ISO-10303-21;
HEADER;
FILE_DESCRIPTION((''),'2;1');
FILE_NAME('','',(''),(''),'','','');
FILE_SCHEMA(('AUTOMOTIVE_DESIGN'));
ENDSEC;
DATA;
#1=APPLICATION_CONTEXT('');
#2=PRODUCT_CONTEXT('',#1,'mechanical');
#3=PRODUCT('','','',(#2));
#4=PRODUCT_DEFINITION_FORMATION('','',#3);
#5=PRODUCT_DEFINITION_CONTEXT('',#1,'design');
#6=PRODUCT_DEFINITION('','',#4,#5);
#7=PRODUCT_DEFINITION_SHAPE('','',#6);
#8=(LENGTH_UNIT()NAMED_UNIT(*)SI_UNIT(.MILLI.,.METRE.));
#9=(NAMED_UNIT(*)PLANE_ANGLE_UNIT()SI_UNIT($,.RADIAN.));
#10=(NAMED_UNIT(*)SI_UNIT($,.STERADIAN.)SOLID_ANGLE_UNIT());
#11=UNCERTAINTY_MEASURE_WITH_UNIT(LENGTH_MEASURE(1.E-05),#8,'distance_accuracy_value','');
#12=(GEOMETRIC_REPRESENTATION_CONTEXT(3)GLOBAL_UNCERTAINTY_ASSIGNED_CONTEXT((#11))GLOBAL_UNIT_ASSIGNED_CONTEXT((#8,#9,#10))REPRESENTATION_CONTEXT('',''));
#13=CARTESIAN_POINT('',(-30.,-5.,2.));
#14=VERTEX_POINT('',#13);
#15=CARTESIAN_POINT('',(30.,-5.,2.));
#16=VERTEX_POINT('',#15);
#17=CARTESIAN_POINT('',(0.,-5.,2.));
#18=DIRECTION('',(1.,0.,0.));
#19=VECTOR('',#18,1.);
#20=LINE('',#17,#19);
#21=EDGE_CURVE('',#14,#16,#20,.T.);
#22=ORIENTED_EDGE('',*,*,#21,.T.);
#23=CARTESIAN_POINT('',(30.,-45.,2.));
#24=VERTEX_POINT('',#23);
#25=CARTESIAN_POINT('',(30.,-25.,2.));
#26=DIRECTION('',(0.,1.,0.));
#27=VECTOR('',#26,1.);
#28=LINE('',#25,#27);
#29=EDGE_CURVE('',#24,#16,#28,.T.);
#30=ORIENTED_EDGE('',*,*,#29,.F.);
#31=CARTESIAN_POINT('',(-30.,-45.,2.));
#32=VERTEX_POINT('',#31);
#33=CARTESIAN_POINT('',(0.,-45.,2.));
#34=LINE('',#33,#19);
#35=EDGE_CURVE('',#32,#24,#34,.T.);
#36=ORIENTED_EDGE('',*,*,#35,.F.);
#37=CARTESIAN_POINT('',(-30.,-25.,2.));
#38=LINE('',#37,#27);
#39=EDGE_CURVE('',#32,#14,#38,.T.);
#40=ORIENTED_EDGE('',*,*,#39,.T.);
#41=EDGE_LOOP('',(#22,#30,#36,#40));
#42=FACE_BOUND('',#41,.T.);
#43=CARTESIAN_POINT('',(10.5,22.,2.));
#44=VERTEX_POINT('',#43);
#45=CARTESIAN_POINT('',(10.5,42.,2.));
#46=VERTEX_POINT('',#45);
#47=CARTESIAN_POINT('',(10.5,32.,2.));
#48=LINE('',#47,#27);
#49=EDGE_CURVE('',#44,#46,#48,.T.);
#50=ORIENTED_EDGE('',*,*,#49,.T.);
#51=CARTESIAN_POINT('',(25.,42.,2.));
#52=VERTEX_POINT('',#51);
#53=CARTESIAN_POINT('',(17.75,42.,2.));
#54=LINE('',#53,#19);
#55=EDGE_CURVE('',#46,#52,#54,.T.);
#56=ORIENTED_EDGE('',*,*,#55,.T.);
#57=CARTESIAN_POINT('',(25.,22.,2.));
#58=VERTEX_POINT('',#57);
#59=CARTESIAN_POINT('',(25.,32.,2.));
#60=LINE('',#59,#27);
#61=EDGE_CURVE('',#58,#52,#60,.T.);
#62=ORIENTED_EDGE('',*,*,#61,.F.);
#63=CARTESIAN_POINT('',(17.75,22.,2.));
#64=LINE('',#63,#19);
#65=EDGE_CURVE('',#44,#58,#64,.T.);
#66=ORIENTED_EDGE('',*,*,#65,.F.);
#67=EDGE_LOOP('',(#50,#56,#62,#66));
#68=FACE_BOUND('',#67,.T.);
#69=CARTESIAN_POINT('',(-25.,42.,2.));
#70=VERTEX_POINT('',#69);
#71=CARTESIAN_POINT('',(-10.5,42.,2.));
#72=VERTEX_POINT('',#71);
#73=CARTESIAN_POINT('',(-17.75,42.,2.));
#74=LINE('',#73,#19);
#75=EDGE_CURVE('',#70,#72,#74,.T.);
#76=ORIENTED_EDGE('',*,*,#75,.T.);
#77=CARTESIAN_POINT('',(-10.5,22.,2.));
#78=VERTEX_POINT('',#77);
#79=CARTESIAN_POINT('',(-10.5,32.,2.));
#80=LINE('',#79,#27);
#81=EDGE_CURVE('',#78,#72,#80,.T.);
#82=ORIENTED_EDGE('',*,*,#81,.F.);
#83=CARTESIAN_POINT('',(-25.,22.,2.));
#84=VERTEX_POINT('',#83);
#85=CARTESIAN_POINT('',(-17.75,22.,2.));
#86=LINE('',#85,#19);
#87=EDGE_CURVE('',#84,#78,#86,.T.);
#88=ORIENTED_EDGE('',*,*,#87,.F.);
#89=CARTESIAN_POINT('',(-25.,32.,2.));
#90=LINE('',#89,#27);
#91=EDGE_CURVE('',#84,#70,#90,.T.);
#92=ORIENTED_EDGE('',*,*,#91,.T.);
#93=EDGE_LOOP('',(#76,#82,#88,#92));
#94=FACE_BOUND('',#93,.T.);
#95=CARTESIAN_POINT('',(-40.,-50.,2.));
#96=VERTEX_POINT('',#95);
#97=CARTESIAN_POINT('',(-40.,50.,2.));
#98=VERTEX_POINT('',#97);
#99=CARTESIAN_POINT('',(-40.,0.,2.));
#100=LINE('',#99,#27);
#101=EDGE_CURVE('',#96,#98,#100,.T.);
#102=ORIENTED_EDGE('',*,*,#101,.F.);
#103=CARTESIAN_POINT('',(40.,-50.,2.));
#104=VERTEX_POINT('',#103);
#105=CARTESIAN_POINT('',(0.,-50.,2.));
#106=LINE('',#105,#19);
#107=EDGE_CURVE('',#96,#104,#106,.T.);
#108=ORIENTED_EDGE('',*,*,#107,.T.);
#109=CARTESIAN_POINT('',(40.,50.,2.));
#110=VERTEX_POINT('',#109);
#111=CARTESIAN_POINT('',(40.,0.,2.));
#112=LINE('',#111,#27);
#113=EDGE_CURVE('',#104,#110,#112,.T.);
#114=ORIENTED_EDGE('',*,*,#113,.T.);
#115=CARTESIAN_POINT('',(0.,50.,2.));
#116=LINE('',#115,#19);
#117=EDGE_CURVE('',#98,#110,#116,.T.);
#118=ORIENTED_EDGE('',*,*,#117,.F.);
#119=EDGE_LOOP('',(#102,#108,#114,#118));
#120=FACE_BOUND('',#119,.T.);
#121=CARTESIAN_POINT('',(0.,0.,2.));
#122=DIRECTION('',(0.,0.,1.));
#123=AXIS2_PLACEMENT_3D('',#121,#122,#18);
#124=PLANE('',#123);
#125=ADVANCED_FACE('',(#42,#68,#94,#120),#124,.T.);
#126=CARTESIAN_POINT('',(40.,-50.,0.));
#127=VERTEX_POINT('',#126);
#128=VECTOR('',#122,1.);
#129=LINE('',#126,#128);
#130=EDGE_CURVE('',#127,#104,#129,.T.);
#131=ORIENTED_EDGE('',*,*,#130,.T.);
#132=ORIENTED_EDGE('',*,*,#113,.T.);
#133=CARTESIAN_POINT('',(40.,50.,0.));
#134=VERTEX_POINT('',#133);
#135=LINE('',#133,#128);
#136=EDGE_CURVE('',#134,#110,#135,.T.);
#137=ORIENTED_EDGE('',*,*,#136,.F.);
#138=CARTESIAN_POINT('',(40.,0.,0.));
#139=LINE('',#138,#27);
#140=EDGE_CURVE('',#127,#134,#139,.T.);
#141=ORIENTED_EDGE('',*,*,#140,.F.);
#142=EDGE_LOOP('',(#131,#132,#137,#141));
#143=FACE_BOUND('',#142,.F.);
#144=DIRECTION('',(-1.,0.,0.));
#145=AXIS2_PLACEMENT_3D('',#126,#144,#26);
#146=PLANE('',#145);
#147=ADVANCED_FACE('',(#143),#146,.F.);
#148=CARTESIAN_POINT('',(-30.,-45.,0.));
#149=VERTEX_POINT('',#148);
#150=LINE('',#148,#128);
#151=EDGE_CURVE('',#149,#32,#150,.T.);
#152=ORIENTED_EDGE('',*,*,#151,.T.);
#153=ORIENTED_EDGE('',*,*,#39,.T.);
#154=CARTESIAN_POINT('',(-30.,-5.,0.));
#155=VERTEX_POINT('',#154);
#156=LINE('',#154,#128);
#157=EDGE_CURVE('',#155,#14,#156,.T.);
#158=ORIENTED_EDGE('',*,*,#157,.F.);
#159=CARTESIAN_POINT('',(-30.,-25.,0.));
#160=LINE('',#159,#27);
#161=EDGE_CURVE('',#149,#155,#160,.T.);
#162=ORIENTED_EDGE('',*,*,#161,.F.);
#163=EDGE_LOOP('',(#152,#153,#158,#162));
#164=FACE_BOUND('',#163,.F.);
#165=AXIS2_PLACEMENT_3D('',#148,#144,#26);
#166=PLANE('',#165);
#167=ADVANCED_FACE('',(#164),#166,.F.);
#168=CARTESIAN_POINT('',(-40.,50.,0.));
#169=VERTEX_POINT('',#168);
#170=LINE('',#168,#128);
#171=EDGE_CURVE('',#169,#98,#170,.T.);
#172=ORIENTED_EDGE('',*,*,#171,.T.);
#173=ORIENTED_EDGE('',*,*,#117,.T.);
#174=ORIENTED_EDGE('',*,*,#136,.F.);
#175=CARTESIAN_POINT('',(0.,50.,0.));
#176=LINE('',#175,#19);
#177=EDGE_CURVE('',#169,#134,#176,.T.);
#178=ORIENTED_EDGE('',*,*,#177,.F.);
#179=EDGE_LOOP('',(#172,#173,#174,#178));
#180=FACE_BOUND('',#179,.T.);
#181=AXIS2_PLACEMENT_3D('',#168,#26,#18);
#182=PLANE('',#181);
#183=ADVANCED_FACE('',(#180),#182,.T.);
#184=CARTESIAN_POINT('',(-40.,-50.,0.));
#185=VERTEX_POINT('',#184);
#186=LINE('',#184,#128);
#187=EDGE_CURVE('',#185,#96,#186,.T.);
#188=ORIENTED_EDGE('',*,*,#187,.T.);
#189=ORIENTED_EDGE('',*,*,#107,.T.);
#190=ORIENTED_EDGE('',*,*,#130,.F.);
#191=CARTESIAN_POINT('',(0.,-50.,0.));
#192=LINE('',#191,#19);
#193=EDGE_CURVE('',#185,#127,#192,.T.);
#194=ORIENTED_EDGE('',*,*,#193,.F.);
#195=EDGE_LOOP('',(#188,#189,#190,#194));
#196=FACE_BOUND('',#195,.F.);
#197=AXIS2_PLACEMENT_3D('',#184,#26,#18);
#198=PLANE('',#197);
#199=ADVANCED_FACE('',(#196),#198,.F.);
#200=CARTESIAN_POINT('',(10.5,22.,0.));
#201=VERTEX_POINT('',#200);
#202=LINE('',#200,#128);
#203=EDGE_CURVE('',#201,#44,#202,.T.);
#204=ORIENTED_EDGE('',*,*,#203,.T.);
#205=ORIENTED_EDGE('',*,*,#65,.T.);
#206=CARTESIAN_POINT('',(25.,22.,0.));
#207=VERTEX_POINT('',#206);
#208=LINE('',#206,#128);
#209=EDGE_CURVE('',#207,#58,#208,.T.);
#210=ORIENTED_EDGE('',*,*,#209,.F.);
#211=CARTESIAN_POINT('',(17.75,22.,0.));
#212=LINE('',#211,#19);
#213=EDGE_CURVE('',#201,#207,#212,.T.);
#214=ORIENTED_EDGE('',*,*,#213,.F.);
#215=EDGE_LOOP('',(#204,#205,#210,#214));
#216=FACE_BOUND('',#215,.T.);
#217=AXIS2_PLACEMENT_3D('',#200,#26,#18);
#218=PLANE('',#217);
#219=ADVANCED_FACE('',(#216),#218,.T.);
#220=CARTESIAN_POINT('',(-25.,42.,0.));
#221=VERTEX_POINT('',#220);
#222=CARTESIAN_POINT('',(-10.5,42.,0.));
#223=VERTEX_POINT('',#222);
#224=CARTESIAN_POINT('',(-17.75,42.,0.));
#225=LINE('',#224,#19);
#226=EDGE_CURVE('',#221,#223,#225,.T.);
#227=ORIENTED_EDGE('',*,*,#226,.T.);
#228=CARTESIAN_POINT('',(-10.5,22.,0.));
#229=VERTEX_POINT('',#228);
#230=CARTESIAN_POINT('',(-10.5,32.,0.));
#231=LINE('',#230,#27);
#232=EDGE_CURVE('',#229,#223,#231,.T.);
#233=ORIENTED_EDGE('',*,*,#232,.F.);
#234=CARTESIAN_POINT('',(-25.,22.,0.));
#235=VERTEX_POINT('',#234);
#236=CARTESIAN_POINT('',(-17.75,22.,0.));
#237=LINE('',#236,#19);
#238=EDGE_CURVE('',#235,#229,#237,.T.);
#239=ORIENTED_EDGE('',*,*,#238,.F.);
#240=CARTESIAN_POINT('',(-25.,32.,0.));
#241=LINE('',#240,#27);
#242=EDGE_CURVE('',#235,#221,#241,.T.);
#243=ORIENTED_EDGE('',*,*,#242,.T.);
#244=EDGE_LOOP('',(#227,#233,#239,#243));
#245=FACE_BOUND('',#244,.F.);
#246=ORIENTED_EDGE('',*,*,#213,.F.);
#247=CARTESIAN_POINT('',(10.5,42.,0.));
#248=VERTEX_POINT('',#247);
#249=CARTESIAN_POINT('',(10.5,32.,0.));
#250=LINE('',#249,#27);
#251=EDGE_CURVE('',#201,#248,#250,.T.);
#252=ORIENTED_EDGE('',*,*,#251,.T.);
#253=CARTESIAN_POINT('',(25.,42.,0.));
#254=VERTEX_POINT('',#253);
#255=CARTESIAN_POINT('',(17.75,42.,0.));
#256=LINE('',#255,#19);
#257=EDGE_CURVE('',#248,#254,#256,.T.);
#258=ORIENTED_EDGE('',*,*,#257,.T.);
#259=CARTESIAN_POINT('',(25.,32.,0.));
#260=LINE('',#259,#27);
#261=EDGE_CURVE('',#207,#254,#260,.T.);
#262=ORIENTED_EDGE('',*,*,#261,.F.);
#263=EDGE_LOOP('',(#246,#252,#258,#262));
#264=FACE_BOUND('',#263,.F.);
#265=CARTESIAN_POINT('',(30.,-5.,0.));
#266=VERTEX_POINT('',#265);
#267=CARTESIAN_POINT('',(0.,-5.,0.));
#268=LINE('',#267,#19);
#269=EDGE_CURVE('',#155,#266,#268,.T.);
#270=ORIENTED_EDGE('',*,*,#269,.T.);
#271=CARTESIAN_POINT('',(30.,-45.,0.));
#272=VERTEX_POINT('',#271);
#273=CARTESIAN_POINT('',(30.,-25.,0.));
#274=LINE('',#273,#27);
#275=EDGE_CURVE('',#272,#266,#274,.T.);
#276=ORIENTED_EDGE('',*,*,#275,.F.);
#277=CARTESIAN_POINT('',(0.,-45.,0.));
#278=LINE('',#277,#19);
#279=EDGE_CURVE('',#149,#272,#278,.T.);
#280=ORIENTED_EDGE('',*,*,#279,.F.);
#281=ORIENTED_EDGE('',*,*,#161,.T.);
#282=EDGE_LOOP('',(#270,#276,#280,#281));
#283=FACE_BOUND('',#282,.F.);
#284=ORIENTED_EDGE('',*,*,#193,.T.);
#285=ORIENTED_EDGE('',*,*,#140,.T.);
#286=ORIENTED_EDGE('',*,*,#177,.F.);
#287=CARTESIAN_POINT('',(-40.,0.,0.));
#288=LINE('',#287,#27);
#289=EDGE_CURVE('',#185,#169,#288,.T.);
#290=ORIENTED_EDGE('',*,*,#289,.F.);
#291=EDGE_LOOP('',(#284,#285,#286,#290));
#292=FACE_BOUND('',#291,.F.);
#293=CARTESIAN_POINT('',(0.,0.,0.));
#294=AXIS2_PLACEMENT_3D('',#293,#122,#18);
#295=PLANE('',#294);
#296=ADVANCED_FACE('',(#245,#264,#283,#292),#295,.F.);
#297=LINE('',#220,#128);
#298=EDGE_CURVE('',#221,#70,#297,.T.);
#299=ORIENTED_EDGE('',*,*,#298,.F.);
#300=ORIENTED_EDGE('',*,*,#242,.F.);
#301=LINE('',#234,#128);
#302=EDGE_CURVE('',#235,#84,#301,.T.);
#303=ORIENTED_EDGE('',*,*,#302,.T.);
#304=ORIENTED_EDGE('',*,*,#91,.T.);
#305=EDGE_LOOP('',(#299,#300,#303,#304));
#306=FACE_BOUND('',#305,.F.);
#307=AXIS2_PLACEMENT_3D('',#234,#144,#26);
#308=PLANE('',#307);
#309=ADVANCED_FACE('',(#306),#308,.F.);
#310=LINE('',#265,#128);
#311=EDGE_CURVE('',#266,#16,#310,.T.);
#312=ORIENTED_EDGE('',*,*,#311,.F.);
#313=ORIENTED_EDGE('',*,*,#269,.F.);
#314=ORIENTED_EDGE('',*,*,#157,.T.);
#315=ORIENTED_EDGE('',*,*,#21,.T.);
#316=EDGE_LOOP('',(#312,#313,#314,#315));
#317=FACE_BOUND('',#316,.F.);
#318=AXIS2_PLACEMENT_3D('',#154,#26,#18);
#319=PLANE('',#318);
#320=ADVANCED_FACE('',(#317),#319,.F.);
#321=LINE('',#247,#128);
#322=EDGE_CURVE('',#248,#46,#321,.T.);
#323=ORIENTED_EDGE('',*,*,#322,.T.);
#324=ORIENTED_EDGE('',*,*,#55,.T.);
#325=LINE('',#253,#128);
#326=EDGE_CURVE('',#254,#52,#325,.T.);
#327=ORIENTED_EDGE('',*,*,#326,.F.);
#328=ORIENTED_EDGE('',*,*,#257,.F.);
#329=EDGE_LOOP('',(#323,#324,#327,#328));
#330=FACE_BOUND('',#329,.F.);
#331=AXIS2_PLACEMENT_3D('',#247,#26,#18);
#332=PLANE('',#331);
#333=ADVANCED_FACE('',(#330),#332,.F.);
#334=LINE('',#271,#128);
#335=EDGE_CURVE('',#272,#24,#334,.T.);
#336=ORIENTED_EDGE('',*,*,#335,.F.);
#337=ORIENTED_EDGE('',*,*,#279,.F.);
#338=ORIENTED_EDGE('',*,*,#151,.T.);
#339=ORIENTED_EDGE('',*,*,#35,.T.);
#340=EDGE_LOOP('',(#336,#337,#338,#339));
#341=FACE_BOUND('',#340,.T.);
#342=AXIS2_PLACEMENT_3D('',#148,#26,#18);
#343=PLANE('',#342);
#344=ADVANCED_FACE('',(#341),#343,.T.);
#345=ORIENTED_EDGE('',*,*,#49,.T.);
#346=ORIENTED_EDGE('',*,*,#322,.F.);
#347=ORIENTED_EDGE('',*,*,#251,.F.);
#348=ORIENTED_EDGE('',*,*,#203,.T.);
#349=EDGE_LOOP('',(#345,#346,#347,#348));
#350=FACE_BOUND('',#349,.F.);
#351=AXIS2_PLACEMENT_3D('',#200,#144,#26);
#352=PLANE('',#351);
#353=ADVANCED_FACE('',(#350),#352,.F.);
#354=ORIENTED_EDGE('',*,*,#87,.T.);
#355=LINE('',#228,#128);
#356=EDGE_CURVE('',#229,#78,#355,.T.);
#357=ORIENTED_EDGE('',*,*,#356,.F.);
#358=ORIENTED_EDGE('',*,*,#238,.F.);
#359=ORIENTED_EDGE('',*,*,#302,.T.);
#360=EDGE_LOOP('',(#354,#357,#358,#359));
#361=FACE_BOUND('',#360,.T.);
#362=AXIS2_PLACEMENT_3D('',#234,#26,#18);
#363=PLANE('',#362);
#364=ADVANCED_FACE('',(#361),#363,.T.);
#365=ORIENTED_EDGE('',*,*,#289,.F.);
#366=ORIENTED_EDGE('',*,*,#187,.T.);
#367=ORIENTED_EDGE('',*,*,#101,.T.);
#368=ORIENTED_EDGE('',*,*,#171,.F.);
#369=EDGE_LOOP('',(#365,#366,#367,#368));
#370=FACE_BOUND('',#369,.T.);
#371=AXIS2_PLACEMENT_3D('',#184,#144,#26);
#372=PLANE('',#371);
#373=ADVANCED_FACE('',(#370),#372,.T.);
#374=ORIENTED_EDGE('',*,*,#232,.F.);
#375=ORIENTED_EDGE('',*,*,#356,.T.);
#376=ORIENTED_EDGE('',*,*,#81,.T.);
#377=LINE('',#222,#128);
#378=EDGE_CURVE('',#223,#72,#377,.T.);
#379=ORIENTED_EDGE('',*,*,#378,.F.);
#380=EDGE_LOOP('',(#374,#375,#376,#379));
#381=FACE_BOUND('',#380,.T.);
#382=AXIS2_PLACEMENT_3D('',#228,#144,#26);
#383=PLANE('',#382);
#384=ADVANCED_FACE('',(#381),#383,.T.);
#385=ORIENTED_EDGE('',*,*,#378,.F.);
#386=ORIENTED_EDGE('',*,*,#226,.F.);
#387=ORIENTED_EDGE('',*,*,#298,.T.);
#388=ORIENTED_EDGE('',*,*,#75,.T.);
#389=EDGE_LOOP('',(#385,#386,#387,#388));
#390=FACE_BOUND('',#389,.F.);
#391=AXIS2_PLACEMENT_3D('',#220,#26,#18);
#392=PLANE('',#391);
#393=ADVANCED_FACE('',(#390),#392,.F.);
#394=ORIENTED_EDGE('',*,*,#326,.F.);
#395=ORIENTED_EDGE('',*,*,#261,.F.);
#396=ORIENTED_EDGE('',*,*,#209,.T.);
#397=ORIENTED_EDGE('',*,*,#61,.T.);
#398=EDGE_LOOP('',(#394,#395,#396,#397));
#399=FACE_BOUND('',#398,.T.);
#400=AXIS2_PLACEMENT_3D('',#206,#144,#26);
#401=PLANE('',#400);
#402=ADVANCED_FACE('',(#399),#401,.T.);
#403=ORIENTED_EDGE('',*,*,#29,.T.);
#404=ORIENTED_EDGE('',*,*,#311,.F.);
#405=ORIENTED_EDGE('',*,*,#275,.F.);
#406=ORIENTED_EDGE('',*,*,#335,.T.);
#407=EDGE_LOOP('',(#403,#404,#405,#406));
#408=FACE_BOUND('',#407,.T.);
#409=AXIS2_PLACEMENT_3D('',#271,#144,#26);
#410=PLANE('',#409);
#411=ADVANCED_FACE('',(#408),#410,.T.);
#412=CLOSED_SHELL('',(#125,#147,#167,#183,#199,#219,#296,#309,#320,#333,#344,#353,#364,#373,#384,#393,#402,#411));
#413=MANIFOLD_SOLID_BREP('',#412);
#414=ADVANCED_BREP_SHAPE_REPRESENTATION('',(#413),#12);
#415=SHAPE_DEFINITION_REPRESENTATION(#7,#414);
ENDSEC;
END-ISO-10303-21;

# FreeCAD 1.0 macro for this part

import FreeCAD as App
import Part
import Sketcher

V = App.Vector


def add_polygon(sketch, points):
    """Adds a closed chain of lines whose ends are joined by coincident constraints."""
    first, n = sketch.GeometryCount, len(points)
    for a, b in zip(points, points[1:] + points[:1]):
        sketch.addGeometry(Part.LineSegment(App.Vector(*a, 0), App.Vector(*b, 0)), False)
    for i in range(n):
        sketch.addConstraint(Sketcher.Constraint("Coincident", first + i, 2, first + (i + 1) % n, 1))

doc = App.newDocument("Part")
body = doc.addObject("PartDesign::Body", "Body")

sketch1 = body.newObject("Sketcher::SketchObject", "Sketch")
sketch1.AttachmentSupport = (doc.getObject("XY_Plane"), [""])
sketch1.MapMode = "FlatFace"
add_polygon(sketch1, [(-40, 50), (-40, -50), (40, -50), (40, 50)])
add_polygon(sketch1, [(30, -45), (-30, -45), (-30, -5), (30, -5)])
add_polygon(sketch1, [(-10.5, 22), (-25, 22), (-25, 42), (-10.5, 42)])
add_polygon(sketch1, [(25, 22), (10.5, 22), (10.5, 42), (25, 42)])
sketch1.addConstraint([
    Sketcher.Constraint("Vertical", 0),
    Sketcher.Constraint("Horizontal", 1),
    Sketcher.Constraint("Vertical", 2),
    Sketcher.Constraint("Horizontal", 3),
    Sketcher.Constraint("Horizontal", 4),
    Sketcher.Constraint("Vertical", 5),
    Sketcher.Constraint("Horizontal", 6),
    Sketcher.Constraint("Vertical", 7),
    Sketcher.Constraint("Horizontal", 8),
    Sketcher.Constraint("Vertical", 9),
    Sketcher.Constraint("Horizontal", 10),
    Sketcher.Constraint("Vertical", 11),
    Sketcher.Constraint("Horizontal", 12),
    Sketcher.Constraint("Vertical", 13),
    Sketcher.Constraint("Horizontal", 14),
    Sketcher.Constraint("Vertical", 15),
    Sketcher.Constraint("Symmetric", 0, 2, 2, 2, -1, 1),
    Sketcher.Constraint("Symmetric", 11, 2, 12, 2, -2),
    Sketcher.Constraint("Symmetric", 9, 2, 14, 2, -2),
    Sketcher.Constraint("DistanceX", 1, 1, 1, 2, 80.0),
    Sketcher.Constraint("DistanceX", 4, 2, 4, 1, 60.0),
    Sketcher.Constraint("DistanceY", 0, 2, 0, 1, 100.0),
    Sketcher.Constraint("DistanceY", 5, 1, 5, 2, 40.0),
    Sketcher.Constraint("DistanceY", 9, 1, 9, 2, 20.0),
    Sketcher.Constraint("DistanceX", 8, 2, 8, 1, 14.5),
    Sketcher.Constraint("DistanceX", 4, 2, -1, 1, 30.0),
    Sketcher.Constraint("DistanceY", 4, 2, -1, 1, 45.0),
    Sketcher.Constraint("DistanceX", 8, 2, -1, 1, 25.0),
    Sketcher.Constraint("DistanceY", -1, 1, 8, 2, 22.0),
])
pad1 = body.newObject("PartDesign::Pad", "Pad")
pad1.Profile = sketch1
pad1.Length = 2

doc.recompute()
